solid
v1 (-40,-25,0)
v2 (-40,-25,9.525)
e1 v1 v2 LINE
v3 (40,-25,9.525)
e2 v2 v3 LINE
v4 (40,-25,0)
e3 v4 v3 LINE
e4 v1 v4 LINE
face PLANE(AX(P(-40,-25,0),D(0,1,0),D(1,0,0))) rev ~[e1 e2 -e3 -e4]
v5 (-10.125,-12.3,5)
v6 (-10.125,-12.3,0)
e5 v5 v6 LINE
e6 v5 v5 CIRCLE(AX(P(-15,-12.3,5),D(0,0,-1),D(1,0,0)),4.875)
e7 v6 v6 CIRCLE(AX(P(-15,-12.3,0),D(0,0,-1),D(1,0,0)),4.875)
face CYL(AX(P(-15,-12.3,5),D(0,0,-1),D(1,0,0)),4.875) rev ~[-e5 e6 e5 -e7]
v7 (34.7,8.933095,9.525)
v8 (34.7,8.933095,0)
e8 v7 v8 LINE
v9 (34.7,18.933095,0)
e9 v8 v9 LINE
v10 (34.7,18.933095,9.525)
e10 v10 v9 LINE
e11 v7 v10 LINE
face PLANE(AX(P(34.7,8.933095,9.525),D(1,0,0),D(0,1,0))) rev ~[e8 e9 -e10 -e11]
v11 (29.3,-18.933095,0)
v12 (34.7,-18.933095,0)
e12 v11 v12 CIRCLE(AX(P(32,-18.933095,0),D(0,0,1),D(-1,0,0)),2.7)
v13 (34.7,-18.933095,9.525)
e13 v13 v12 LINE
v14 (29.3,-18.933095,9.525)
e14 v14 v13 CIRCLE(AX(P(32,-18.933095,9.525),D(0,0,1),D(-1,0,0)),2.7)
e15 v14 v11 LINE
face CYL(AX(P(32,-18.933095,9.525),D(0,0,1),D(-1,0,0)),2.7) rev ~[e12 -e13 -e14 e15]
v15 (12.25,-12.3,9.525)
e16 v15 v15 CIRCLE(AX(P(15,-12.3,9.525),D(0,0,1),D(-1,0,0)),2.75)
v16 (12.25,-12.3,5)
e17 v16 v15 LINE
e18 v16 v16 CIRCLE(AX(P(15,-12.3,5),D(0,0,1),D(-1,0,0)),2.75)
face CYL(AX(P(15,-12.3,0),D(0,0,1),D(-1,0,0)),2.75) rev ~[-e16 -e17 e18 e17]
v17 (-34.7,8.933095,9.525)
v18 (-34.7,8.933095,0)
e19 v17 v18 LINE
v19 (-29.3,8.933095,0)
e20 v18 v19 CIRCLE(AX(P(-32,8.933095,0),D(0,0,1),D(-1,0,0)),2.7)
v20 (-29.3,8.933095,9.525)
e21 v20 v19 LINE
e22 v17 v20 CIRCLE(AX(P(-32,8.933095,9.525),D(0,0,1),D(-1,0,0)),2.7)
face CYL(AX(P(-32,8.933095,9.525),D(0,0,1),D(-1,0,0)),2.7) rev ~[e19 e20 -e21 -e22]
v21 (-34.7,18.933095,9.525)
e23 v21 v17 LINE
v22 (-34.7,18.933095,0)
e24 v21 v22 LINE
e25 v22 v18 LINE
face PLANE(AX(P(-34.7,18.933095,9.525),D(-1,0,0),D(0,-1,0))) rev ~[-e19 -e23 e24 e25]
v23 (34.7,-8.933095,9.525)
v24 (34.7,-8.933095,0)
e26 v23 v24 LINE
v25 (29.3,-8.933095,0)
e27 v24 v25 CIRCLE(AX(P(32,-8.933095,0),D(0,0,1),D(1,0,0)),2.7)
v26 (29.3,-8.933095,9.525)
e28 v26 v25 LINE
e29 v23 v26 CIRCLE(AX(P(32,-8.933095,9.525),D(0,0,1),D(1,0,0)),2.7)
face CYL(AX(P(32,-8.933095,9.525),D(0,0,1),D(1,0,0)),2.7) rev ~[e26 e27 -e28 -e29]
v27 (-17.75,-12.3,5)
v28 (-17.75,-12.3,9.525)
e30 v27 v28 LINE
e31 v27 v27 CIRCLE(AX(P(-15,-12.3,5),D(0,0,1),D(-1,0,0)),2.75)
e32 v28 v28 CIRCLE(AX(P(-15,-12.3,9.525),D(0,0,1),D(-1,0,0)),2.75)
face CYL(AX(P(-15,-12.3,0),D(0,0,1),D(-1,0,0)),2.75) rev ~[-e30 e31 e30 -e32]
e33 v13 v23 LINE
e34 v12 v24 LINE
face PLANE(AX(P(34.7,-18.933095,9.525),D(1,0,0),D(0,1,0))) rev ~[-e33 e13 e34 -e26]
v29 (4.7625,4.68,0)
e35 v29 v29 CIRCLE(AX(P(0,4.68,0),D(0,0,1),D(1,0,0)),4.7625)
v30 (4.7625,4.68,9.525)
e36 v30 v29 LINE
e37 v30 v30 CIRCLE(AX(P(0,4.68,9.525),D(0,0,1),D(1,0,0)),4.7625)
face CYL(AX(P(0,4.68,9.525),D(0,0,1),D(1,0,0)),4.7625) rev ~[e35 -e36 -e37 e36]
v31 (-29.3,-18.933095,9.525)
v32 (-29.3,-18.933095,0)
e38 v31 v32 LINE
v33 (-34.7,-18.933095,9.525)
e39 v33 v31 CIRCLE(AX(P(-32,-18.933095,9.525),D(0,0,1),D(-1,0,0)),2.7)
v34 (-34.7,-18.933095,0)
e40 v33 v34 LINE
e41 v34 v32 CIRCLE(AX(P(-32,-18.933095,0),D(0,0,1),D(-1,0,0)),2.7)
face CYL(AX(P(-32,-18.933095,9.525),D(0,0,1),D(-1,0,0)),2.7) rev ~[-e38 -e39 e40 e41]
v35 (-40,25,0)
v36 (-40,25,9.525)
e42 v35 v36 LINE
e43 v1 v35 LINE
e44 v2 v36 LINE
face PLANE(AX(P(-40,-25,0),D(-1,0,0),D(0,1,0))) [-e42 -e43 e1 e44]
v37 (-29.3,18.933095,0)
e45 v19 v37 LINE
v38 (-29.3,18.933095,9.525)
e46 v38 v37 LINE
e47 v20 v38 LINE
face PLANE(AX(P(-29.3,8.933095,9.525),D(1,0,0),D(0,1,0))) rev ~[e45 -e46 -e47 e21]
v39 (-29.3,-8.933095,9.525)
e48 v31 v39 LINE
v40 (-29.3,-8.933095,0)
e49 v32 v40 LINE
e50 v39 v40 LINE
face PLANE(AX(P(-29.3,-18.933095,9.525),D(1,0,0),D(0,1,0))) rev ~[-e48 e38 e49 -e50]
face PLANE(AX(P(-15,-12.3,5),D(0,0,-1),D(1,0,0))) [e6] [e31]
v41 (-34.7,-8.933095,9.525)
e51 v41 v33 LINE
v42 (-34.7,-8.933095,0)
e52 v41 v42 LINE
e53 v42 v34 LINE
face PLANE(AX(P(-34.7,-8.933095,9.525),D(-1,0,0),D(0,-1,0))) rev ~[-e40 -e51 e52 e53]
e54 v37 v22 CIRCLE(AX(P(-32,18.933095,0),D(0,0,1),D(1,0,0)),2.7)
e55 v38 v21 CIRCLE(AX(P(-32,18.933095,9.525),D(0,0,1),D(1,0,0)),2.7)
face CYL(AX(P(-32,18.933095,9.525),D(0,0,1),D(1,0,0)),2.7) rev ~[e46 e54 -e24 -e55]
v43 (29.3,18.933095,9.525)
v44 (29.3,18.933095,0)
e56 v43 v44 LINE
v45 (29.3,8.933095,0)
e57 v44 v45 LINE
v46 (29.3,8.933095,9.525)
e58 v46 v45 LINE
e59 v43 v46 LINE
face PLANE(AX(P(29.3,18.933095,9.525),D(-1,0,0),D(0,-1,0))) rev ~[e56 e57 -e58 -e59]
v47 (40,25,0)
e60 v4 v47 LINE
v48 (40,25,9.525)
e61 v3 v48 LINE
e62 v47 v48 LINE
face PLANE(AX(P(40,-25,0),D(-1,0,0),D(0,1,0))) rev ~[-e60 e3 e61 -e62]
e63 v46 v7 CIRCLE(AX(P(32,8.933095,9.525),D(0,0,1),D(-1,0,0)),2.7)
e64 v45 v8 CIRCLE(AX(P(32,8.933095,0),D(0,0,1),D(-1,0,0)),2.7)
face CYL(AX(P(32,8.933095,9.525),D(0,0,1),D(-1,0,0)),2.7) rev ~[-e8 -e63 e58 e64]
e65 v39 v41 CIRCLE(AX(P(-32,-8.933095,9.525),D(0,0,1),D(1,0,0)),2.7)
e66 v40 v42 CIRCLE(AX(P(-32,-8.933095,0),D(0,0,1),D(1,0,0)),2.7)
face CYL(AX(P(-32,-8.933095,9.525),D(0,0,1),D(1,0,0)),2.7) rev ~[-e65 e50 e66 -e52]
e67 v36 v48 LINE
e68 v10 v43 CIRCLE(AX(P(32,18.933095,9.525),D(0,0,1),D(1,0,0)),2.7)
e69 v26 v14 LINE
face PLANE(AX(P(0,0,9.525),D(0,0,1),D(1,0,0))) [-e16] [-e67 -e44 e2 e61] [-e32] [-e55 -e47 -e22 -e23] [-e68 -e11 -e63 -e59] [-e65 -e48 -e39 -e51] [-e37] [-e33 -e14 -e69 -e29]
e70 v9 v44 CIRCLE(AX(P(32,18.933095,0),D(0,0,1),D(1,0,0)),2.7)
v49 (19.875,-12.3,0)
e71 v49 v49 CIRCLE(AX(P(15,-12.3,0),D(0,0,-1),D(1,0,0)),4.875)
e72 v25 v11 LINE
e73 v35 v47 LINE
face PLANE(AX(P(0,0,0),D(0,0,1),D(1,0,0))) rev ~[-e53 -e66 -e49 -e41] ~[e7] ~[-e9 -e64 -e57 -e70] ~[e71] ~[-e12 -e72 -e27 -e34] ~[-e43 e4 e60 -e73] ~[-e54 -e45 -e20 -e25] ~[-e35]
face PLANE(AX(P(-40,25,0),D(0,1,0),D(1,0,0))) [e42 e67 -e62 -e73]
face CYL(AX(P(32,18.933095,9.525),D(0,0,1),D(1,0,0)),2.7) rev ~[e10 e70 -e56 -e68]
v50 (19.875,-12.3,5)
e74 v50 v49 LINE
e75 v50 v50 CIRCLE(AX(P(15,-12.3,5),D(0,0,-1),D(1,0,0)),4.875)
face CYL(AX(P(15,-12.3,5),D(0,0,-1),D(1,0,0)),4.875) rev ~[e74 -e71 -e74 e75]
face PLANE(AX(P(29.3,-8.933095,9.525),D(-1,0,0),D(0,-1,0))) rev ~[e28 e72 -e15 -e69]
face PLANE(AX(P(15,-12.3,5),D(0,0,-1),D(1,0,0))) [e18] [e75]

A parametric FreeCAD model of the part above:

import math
import FreeCAD as App
import Part
import Sketcher

V = App.Vector


def add_polygon(sketch, points):
    """Adds a closed chain of lines whose ends are joined by coincident constraints."""
    first, n = sketch.GeometryCount, len(points)
    for a, b in zip(points, points[1:] + points[:1]):
        sketch.addGeometry(Part.LineSegment(App.Vector(*a, 0), App.Vector(*b, 0)), False)
    for i in range(n):
        sketch.addConstraint(Sketcher.Constraint("Coincident", first + i, 2, first + (i + 1) % n, 1))

doc = App.newDocument("Part")
params = doc.addObject("Spreadsheet::Sheet", "Params")
for row, (alias, value) in enumerate([
    ("sketch1_width", "80 mm"),
    ("sketch1_height", "50 mm"),
    ("pad1_length", "9.525 mm"),
    ("sketch2_radius", "2.7 mm"),
    ("sketch2_height", "10 mm"),
    ("pocket1_length", "25 mm"),
    ("sketch4_diameter", "5.5 mm"),
    ("hole_diameter", "5.5 mm"),
    ("hole_cbore_diameter", "9.75 mm"),
    ("hole_cbore_depth", "5 mm"),
], start=1):
    params.set(f"A{row}", alias)
    params.set(f"B{row}", "=" + value)
    params.setAlias(f"B{row}", alias)

body = doc.addObject("PartDesign::Body", "Body")

# Sketch on XY plane
sketch1 = body.newObject("Sketcher::SketchObject", "Sketch")
sketch1.AttachmentSupport = (doc.getObject("XY_Plane"), [""])
sketch1.MapMode = "FlatFace"
add_polygon(sketch1, [(-40, 25), (-40, -25), (40, -25), (40, 25)])  # lines 0-3
sketch1.addConstraint([
    Sketcher.Constraint("Vertical", 0),
    Sketcher.Constraint("Horizontal", 1),
    Sketcher.Constraint("Vertical", 2),
    Sketcher.Constraint("Horizontal", 3),
    Sketcher.Constraint("Symmetric", 0, 2, 2, 2, -1, 1),
    Sketcher.Constraint("DistanceX", 1, 1, 1, 2, 80.0),
    Sketcher.Constraint("DistanceY", 0, 2, 0, 1, 50.0),
])
sketch1.setExpression("Constraints[9]", "Params.sketch1_width")
sketch1.setExpression("Constraints[10]", "Params.sketch1_height")
pad1 = body.newObject("PartDesign::Pad", "Pad")
pad1.Profile = sketch1
pad1.setExpression("Length", "Params.pad1_length")

# Sketch on XY plane
sketch2 = body.newObject("Sketcher::SketchObject", "Sketch001")
sketch2.AttachmentSupport = (doc.getObject("XY_Plane"), [""])
sketch2.MapMode = "FlatFace"
sketch2.AttachmentOffset = App.Placement(V(0, 0, 9.525), App.Rotation())
sketch2.addGeometry([
    Part.ArcOfCircle(Part.Circle(V(-32, 18.933095, 0), V(0, 0, 1), 2.7), math.radians(0), math.radians(180)),  # 0
    Part.LineSegment(V(-34.7, 18.933095, 0), V(-34.7, 8.933095, 0)),  # 1
    Part.ArcOfCircle(Part.Circle(V(-32, 8.933095, 0), V(0, 0, 1), 2.7), math.radians(180), math.radians(360)),  # 2
    Part.LineSegment(V(-29.3, 8.933095, 0), V(-29.3, 18.933095, 0)),  # 3
    Part.ArcOfCircle(Part.Circle(V(-32, -18.933095, 0), V(0, 0, 1), 2.7), math.radians(180), math.radians(360)),  # 4
    Part.LineSegment(V(-29.3, -18.933095, 0), V(-29.3, -8.933095, 0)),  # 5
    Part.ArcOfCircle(Part.Circle(V(-32, -8.933095, 0), V(0, 0, 1), 2.7), math.radians(0), math.radians(180)),  # 6
    Part.LineSegment(V(-34.7, -8.933095, 0), V(-34.7, -18.933095, 0)),  # 7
    Part.ArcOfCircle(Part.Circle(V(32, -18.933095, 0), V(0, 0, 1), 2.7), math.radians(180), math.radians(360)),  # 8
    Part.LineSegment(V(34.7, -18.933095, 0), V(34.7, -8.933095, 0)),  # 9
    Part.ArcOfCircle(Part.Circle(V(32, -8.933095, 0), V(0, 0, 1), 2.7), math.radians(0), math.radians(180)),  # 10
    Part.LineSegment(V(29.3, -8.933095, 0), V(29.3, -18.933095, 0)),  # 11
    Part.ArcOfCircle(Part.Circle(V(32, 18.933095, 0), V(0, 0, 1), 2.7), math.radians(0), math.radians(180)),  # 12
    Part.LineSegment(V(29.3, 18.933095, 0), V(29.3, 8.933095, 0)),  # 13
    Part.ArcOfCircle(Part.Circle(V(32, 8.933095, 0), V(0, 0, 1), 2.7), math.radians(180), math.radians(360)),  # 14
    Part.LineSegment(V(34.7, 8.933095, 0), V(34.7, 18.933095, 0)),  # 15
], False)
sketch2.addConstraint([
    Sketcher.Constraint("Tangent", 0, 2, 1, 1),
    Sketcher.Constraint("Tangent", 1, 2, 2, 1),
    Sketcher.Constraint("Tangent", 2, 2, 3, 1),
    Sketcher.Constraint("Tangent", 3, 2, 0, 1),
    Sketcher.Constraint("Tangent", 4, 2, 5, 1),
    Sketcher.Constraint("Tangent", 5, 2, 6, 1),
    Sketcher.Constraint("Tangent", 6, 2, 7, 1),
    Sketcher.Constraint("Tangent", 7, 2, 4, 1),
    Sketcher.Constraint("Tangent", 8, 2, 9, 1),
    Sketcher.Constraint("Tangent", 9, 2, 10, 1),
    Sketcher.Constraint("Tangent", 10, 2, 11, 1),
    Sketcher.Constraint("Tangent", 11, 2, 8, 1),
    Sketcher.Constraint("Tangent", 12, 2, 13, 1),
    Sketcher.Constraint("Tangent", 13, 2, 14, 1),
    Sketcher.Constraint("Tangent", 14, 2, 15, 1),
    Sketcher.Constraint("Tangent", 15, 2, 12, 1),
    Sketcher.Constraint("Vertical", 1),
    Sketcher.Constraint("Vertical", 3),
    Sketcher.Constraint("Vertical", 5),
    Sketcher.Constraint("Vertical", 7),
    Sketcher.Constraint("Vertical", 9),
    Sketcher.Constraint("Vertical", 11),
    Sketcher.Constraint("Vertical", 13),
    Sketcher.Constraint("Vertical", 15),
    Sketcher.Constraint("Equal", 2, 4),
    Sketcher.Constraint("Equal", 6, 8),
    Sketcher.Constraint("Equal", 10, 12),
    Sketcher.Constraint("Symmetric", 0, 3, 8, 3, -1, 1),
    Sketcher.Constraint("Symmetric", 4, 3, 12, 3, -1, 1),
    Sketcher.Constraint("Symmetric", 4, 3, 8, 3, -2),
    Sketcher.Constraint("Horizontal", 6, 3, 10, 3),
    Sketcher.Constraint("Horizontal", 2, 3, 14, 3),
    Sketcher.Constraint("Equal", 3, 5),
    Sketcher.Constraint("Radius", 0, 2.7),
    Sketcher.Constraint("DistanceY", 1, 2, 1, 1, 10.0),
    Sketcher.Constraint("DistanceX", 0, 3, -1, 1, 32.0),
    Sketcher.Constraint("DistanceY", 4, 3, 2, 3, 27.866191),
])
sketch2.setExpression("Constraints[33]", "Params.sketch2_radius")
sketch2.setExpression("Constraints[34]", "Params.sketch2_height")
pocket1 = body.newObject("PartDesign::Pocket", "Pocket")
pocket1.Profile = sketch2
pocket1.setExpression("Length", "Params.pocket1_length")

# Sketch on XY plane
sketch3 = body.newObject("Sketcher::SketchObject", "Sketch002")
sketch3.AttachmentSupport = (doc.getObject("XY_Plane"), [""])
sketch3.MapMode = "FlatFace"
sketch3.AttachmentOffset = App.Placement(V(0, 0, 9.525), App.Rotation())
sketch3.addGeometry(Part.Circle(V(0, 4.68, 0), V(0, 0, 1), 4.7625), False)
sketch3.addConstraint([
    Sketcher.Constraint("PointOnObject", 0, 3, -2),
    Sketcher.Constraint("Diameter", 0, 9.525),
    Sketcher.Constraint("DistanceY", -1, 1, 0, 3, 4.68),
])
pocket2 = body.newObject("PartDesign::Pocket", "Pocket001")
pocket2.Profile = sketch3
pocket2.Type = "ThroughAll"

# Sketch on XY plane
sketch4 = body.newObject("Sketcher::SketchObject", "Sketch003")
sketch4.AttachmentSupport = (doc.getObject("XY_Plane"), [""])
sketch4.MapMode = "FlatFace"
sketch4.addGeometry([
    Part.Circle(V(-15, -12.3, 0), V(0, 0, 1), 2.75),
    Part.Circle(V(15, -12.3, 0), V(0, 0, 1), 2.75),
], False)
sketch4.addConstraint([
    Sketcher.Constraint("Equal", 0, 1),
    Sketcher.Constraint("Symmetric", 0, 3, 1, 3, -2),
    Sketcher.Constraint("Diameter", 0, 5.5),
    Sketcher.Constraint("DistanceX", 0, 3, -1, 1, 15.0),
    Sketcher.Constraint("DistanceY", 0, 3, -1, 1, 12.3),
])
sketch4.setExpression("Constraints[2]", "Params.sketch4_diameter")
doc.recompute()
hole = body.newObject("PartDesign::Hole", "Hole")
hole.Profile = sketch4
hole.ThreadType = "None"
hole.setExpression("Diameter", "Params.hole_diameter")
hole.DepthType = "ThroughAll"
hole.HoleCutType = "Counterbore"
hole.setExpression("HoleCutDiameter", "Params.hole_cbore_diameter")
hole.setExpression("HoleCutDepth", "Params.hole_cbore_depth")
hole.Reversed = True

doc.recompute()
